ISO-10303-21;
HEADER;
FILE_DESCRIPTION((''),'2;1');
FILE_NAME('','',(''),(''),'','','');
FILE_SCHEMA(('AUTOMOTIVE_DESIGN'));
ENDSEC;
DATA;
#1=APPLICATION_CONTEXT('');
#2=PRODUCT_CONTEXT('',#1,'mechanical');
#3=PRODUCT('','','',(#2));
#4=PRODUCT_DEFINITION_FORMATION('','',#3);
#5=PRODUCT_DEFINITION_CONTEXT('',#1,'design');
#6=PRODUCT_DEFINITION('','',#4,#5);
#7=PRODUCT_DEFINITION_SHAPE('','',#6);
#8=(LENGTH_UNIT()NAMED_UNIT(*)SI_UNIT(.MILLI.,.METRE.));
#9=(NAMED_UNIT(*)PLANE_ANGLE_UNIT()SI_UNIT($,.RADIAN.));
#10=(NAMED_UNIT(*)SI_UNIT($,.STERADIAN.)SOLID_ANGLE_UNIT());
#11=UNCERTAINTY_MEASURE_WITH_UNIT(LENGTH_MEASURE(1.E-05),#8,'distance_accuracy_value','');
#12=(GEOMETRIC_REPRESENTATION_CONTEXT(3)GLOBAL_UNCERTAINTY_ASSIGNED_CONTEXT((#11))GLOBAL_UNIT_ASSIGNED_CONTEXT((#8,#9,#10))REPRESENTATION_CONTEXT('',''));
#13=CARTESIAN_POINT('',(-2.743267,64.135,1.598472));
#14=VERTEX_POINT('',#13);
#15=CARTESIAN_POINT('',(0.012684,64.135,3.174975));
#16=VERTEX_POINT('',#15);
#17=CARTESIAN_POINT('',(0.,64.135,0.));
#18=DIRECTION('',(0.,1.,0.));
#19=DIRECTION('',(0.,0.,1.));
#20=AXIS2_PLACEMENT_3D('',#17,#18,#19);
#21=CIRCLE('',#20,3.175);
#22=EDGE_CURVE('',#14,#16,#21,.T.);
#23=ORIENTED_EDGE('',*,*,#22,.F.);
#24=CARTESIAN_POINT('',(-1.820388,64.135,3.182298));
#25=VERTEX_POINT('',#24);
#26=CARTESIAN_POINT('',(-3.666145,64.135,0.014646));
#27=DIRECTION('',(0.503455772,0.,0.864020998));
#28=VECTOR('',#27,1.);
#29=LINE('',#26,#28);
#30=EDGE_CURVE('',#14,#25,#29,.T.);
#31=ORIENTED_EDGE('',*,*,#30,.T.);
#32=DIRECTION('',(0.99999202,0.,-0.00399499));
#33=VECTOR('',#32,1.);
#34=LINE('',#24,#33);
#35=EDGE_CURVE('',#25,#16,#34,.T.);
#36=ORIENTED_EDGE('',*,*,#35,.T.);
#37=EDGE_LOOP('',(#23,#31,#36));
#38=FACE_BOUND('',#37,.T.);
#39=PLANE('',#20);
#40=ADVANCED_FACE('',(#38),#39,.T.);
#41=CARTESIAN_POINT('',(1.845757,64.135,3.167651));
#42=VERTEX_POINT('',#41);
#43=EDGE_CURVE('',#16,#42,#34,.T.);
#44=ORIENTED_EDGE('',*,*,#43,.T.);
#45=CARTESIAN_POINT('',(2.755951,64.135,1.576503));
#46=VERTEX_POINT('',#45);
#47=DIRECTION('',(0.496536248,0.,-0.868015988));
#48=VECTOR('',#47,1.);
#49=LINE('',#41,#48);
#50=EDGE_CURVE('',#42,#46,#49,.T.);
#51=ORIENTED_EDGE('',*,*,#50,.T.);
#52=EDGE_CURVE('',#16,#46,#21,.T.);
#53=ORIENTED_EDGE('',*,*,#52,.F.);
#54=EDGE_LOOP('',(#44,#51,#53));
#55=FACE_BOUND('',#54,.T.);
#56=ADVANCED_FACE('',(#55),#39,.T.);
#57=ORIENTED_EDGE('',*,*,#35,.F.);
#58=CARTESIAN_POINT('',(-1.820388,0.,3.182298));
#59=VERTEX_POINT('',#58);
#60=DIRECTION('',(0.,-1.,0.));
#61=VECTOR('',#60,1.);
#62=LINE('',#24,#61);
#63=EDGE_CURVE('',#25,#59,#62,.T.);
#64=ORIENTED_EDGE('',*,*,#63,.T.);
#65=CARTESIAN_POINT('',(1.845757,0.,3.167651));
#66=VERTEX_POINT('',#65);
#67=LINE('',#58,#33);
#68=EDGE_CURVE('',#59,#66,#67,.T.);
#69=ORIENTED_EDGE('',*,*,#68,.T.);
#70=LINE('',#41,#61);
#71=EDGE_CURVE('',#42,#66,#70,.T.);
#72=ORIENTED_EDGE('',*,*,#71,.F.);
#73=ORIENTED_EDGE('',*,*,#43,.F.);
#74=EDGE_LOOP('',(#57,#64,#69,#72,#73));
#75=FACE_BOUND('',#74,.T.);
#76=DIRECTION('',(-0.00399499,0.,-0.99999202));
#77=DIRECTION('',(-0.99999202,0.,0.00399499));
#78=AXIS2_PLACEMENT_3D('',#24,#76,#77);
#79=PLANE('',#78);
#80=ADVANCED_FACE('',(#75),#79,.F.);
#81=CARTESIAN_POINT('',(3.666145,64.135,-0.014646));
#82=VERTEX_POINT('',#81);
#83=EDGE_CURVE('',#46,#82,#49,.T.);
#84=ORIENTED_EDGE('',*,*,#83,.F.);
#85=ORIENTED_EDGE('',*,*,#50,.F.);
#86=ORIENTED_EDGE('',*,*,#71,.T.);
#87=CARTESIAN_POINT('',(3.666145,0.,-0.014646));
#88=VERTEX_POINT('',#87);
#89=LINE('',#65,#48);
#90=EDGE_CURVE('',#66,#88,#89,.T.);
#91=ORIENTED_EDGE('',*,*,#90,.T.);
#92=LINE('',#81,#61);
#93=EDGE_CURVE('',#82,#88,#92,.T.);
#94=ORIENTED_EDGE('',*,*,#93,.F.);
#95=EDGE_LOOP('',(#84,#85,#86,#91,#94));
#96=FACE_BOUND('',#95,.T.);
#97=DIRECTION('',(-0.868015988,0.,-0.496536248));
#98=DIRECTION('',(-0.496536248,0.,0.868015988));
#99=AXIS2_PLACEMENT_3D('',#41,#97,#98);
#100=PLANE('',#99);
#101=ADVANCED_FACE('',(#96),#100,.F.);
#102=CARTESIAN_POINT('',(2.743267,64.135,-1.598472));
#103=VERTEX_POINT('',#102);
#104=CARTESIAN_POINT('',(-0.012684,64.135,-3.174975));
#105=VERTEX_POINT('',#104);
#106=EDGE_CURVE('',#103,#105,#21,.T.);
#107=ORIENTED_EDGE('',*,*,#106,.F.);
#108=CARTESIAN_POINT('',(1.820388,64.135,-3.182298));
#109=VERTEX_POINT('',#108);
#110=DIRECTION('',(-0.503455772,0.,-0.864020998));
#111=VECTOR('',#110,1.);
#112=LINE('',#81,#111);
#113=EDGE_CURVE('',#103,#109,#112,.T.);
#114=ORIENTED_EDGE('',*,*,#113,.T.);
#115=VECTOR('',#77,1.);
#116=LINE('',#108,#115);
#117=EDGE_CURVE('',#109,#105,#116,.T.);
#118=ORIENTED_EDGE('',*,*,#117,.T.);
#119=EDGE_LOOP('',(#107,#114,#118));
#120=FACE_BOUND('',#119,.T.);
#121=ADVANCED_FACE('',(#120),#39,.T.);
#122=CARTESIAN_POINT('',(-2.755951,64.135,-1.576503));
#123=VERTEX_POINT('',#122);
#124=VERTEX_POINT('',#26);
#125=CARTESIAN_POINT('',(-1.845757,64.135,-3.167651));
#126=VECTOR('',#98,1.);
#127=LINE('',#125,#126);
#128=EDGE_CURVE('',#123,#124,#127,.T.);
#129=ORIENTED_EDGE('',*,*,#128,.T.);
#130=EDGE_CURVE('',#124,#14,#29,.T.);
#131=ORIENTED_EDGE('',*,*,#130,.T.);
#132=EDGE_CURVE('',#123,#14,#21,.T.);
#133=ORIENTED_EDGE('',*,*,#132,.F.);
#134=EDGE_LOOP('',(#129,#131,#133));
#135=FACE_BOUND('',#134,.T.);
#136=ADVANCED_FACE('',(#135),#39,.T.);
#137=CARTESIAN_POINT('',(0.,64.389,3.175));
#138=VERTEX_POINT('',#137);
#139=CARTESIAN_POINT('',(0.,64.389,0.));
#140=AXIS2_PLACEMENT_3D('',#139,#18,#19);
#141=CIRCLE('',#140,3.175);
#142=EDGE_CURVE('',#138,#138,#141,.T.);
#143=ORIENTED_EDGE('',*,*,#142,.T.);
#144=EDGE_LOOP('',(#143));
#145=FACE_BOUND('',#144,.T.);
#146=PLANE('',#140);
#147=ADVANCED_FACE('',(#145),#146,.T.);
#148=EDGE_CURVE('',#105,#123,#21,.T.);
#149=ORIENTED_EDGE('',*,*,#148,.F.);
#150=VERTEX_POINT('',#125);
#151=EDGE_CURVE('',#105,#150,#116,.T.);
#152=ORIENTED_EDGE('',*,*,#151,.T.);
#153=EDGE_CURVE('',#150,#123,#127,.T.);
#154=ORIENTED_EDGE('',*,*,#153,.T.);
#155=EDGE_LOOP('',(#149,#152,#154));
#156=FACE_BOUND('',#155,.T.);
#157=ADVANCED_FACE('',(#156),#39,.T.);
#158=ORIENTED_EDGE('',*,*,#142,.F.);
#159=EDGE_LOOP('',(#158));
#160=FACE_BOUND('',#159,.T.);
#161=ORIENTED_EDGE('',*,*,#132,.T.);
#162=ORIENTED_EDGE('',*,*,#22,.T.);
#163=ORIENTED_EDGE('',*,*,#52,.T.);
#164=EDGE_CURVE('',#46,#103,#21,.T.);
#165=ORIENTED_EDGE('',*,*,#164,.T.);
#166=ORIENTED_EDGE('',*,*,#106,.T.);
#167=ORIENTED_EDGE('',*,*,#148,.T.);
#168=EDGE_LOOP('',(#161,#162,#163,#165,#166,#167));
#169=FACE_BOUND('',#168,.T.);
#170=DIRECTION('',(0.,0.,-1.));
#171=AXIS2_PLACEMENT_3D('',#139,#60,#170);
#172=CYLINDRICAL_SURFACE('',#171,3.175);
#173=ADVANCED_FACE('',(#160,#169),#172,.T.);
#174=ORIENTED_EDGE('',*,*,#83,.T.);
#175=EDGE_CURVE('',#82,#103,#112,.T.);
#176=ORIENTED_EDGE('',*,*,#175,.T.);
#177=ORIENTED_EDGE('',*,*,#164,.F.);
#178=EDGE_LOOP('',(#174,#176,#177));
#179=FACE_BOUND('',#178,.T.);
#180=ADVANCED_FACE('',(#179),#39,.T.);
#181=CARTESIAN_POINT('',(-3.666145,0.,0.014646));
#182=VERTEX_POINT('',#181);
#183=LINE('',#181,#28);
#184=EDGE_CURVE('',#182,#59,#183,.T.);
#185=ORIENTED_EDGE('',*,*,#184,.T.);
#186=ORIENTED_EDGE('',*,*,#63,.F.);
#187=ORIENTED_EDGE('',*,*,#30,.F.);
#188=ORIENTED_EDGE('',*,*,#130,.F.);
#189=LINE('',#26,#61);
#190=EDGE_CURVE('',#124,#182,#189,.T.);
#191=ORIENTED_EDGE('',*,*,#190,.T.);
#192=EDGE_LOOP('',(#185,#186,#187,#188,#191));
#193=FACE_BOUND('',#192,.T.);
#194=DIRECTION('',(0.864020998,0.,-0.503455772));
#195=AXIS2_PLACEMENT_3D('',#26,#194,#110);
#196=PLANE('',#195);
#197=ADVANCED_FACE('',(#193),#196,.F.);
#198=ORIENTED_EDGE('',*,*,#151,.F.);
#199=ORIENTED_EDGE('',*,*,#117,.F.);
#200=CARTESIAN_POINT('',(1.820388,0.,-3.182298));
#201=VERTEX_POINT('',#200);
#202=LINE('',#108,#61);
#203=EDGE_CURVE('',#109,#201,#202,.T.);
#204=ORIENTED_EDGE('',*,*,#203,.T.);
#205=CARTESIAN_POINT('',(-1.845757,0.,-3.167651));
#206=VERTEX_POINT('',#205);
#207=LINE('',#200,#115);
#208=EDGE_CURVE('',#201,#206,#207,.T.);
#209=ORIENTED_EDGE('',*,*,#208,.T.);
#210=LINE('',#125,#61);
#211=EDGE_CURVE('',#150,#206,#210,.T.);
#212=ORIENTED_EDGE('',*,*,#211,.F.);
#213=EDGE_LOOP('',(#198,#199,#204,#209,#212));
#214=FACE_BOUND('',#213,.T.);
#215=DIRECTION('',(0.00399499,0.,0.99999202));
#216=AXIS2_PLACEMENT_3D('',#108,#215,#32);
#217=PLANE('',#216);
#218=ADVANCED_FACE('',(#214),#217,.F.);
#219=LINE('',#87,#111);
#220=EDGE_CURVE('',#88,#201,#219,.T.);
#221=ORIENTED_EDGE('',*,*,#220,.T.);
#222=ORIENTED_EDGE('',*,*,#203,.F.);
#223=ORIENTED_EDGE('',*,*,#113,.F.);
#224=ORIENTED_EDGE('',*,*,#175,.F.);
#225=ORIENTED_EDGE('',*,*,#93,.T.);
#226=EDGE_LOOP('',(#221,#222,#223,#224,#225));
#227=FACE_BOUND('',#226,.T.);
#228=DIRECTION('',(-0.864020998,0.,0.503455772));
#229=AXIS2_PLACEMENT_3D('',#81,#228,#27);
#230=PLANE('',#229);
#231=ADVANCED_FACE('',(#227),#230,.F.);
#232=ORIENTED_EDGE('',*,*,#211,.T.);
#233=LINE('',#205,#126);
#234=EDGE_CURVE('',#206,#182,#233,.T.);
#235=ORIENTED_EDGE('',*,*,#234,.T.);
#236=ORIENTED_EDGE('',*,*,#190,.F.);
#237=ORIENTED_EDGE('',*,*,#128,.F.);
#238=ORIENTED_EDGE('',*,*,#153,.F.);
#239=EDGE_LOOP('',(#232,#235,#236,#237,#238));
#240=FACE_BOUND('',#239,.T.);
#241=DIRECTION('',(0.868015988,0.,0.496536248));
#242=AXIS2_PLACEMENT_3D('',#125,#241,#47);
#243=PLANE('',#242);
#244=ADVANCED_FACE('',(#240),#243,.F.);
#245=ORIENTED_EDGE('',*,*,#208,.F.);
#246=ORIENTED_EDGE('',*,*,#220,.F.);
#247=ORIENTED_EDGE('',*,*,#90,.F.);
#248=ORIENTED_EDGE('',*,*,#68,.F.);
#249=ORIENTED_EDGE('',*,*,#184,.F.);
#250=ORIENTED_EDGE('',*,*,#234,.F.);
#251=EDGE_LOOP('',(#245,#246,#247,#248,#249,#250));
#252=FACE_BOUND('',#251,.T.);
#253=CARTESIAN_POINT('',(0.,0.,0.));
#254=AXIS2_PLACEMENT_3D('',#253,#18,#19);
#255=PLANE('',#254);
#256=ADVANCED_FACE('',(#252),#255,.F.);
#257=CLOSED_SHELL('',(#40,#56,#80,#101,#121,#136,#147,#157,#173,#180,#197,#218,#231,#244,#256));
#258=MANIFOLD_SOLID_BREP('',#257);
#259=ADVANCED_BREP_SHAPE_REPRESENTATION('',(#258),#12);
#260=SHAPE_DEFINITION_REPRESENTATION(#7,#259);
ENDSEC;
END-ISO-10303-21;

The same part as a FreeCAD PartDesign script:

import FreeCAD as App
import Part
import Sketcher

V = App.Vector
Q = App.Units.Quantity

doc = App.newDocument("Part")
body = doc.addObject("PartDesign::Body", "Body")

sketch1 = doc.addObject("Sketcher::SketchObject", "Sketch")
body.addObject(sketch1)
sketch1.AttachmentSupport = (doc.XZ_Plane, [""])
sketch1.MapMode = "FlatFace"
sketch1.addGeometry([
    Part.LineSegment(V(1.8, -3.2, 0), V(-1.8, -3.2, 0)),
    Part.LineSegment(V(-1.8, -3.2, 0), V(-3.7, 0, 0)),
    Part.LineSegment(V(-3.7, 0, 0), V(-1.8, 3.2, 0)),
    Part.LineSegment(V(-1.8, 3.2, 0), V(1.8, 3.2, 0)),
    Part.LineSegment(V(1.8, 3.2, 0), V(3.7, 0, 0)),
    Part.LineSegment(V(3.7, 0, 0), V(1.8, -3.2, 0)),
], False)
sketch1.addConstraint([
    Sketcher.Constraint("Coincident", 0, 2, 1, 1),
    Sketcher.Constraint("Coincident", 1, 2, 2, 1),
    Sketcher.Constraint("Coincident", 2, 2, 3, 1),
    Sketcher.Constraint("Coincident", 3, 2, 4, 1),
    Sketcher.Constraint("Coincident", 4, 2, 5, 1),
    Sketcher.Constraint("Coincident", 5, 2, 0, 1),
    Sketcher.Constraint("Symmetric", 0, 2, 3, 2, -1, 1),
    Sketcher.Constraint("Symmetric", 1, 2, 4, 2, -1, 1),
    Sketcher.Constraint("Symmetric", 2, 2, 5, 2, -1, 1),
    Sketcher.Constraint("Equal", 0, 1),
    Sketcher.Constraint("Equal", 1, 2),
    Sketcher.Constraint("DistanceX", 1, 2, 3, 2, Q("5.511902 mm")),
    Sketcher.Constraint("DistanceY", 0, 2, -1, 1, Q("3.167651 mm")),
    Sketcher.Constraint("DistanceX", 2, 2, -1, 1, Q("1.820388 mm")),
    Sketcher.Constraint("DistanceX", 1, 2, 0, 2, Q("1.820388 mm")),
])
pad1 = doc.addObject("PartDesign::Pad", "Pad")
body.addObject(pad1)
pad1.Profile = sketch1
pad1.Length = Q("2.525 in")
pad1.Reversed = True

sketch2 = doc.addObject("Sketcher::SketchObject", "Sketch001")
body.addObject(sketch2)
sketch2.AttachmentSupport = (doc.XZ_Plane, [""])
sketch2.MapMode = "FlatFace"
sketch2.AttachmentOffset = App.Placement(V(0, 0, -2.525 * 25.4), App.Rotation())
sketch2.addGeometry(Part.Circle(V(0, 0, 0), V(0, 0, 1), 3.2), False)
sketch2.addConstraint([
    Sketcher.Constraint("Coincident", 0, 3, -1, 1),
    Sketcher.Constraint("Diameter", 0, Q("0.25 in")),
])
pad2 = doc.addObject("PartDesign::Pad", "Pad001")
body.addObject(pad2)
pad2.Profile = sketch2
pad2.Length = Q("0.01 in")
pad2.Reversed = True

doc.recompute()
